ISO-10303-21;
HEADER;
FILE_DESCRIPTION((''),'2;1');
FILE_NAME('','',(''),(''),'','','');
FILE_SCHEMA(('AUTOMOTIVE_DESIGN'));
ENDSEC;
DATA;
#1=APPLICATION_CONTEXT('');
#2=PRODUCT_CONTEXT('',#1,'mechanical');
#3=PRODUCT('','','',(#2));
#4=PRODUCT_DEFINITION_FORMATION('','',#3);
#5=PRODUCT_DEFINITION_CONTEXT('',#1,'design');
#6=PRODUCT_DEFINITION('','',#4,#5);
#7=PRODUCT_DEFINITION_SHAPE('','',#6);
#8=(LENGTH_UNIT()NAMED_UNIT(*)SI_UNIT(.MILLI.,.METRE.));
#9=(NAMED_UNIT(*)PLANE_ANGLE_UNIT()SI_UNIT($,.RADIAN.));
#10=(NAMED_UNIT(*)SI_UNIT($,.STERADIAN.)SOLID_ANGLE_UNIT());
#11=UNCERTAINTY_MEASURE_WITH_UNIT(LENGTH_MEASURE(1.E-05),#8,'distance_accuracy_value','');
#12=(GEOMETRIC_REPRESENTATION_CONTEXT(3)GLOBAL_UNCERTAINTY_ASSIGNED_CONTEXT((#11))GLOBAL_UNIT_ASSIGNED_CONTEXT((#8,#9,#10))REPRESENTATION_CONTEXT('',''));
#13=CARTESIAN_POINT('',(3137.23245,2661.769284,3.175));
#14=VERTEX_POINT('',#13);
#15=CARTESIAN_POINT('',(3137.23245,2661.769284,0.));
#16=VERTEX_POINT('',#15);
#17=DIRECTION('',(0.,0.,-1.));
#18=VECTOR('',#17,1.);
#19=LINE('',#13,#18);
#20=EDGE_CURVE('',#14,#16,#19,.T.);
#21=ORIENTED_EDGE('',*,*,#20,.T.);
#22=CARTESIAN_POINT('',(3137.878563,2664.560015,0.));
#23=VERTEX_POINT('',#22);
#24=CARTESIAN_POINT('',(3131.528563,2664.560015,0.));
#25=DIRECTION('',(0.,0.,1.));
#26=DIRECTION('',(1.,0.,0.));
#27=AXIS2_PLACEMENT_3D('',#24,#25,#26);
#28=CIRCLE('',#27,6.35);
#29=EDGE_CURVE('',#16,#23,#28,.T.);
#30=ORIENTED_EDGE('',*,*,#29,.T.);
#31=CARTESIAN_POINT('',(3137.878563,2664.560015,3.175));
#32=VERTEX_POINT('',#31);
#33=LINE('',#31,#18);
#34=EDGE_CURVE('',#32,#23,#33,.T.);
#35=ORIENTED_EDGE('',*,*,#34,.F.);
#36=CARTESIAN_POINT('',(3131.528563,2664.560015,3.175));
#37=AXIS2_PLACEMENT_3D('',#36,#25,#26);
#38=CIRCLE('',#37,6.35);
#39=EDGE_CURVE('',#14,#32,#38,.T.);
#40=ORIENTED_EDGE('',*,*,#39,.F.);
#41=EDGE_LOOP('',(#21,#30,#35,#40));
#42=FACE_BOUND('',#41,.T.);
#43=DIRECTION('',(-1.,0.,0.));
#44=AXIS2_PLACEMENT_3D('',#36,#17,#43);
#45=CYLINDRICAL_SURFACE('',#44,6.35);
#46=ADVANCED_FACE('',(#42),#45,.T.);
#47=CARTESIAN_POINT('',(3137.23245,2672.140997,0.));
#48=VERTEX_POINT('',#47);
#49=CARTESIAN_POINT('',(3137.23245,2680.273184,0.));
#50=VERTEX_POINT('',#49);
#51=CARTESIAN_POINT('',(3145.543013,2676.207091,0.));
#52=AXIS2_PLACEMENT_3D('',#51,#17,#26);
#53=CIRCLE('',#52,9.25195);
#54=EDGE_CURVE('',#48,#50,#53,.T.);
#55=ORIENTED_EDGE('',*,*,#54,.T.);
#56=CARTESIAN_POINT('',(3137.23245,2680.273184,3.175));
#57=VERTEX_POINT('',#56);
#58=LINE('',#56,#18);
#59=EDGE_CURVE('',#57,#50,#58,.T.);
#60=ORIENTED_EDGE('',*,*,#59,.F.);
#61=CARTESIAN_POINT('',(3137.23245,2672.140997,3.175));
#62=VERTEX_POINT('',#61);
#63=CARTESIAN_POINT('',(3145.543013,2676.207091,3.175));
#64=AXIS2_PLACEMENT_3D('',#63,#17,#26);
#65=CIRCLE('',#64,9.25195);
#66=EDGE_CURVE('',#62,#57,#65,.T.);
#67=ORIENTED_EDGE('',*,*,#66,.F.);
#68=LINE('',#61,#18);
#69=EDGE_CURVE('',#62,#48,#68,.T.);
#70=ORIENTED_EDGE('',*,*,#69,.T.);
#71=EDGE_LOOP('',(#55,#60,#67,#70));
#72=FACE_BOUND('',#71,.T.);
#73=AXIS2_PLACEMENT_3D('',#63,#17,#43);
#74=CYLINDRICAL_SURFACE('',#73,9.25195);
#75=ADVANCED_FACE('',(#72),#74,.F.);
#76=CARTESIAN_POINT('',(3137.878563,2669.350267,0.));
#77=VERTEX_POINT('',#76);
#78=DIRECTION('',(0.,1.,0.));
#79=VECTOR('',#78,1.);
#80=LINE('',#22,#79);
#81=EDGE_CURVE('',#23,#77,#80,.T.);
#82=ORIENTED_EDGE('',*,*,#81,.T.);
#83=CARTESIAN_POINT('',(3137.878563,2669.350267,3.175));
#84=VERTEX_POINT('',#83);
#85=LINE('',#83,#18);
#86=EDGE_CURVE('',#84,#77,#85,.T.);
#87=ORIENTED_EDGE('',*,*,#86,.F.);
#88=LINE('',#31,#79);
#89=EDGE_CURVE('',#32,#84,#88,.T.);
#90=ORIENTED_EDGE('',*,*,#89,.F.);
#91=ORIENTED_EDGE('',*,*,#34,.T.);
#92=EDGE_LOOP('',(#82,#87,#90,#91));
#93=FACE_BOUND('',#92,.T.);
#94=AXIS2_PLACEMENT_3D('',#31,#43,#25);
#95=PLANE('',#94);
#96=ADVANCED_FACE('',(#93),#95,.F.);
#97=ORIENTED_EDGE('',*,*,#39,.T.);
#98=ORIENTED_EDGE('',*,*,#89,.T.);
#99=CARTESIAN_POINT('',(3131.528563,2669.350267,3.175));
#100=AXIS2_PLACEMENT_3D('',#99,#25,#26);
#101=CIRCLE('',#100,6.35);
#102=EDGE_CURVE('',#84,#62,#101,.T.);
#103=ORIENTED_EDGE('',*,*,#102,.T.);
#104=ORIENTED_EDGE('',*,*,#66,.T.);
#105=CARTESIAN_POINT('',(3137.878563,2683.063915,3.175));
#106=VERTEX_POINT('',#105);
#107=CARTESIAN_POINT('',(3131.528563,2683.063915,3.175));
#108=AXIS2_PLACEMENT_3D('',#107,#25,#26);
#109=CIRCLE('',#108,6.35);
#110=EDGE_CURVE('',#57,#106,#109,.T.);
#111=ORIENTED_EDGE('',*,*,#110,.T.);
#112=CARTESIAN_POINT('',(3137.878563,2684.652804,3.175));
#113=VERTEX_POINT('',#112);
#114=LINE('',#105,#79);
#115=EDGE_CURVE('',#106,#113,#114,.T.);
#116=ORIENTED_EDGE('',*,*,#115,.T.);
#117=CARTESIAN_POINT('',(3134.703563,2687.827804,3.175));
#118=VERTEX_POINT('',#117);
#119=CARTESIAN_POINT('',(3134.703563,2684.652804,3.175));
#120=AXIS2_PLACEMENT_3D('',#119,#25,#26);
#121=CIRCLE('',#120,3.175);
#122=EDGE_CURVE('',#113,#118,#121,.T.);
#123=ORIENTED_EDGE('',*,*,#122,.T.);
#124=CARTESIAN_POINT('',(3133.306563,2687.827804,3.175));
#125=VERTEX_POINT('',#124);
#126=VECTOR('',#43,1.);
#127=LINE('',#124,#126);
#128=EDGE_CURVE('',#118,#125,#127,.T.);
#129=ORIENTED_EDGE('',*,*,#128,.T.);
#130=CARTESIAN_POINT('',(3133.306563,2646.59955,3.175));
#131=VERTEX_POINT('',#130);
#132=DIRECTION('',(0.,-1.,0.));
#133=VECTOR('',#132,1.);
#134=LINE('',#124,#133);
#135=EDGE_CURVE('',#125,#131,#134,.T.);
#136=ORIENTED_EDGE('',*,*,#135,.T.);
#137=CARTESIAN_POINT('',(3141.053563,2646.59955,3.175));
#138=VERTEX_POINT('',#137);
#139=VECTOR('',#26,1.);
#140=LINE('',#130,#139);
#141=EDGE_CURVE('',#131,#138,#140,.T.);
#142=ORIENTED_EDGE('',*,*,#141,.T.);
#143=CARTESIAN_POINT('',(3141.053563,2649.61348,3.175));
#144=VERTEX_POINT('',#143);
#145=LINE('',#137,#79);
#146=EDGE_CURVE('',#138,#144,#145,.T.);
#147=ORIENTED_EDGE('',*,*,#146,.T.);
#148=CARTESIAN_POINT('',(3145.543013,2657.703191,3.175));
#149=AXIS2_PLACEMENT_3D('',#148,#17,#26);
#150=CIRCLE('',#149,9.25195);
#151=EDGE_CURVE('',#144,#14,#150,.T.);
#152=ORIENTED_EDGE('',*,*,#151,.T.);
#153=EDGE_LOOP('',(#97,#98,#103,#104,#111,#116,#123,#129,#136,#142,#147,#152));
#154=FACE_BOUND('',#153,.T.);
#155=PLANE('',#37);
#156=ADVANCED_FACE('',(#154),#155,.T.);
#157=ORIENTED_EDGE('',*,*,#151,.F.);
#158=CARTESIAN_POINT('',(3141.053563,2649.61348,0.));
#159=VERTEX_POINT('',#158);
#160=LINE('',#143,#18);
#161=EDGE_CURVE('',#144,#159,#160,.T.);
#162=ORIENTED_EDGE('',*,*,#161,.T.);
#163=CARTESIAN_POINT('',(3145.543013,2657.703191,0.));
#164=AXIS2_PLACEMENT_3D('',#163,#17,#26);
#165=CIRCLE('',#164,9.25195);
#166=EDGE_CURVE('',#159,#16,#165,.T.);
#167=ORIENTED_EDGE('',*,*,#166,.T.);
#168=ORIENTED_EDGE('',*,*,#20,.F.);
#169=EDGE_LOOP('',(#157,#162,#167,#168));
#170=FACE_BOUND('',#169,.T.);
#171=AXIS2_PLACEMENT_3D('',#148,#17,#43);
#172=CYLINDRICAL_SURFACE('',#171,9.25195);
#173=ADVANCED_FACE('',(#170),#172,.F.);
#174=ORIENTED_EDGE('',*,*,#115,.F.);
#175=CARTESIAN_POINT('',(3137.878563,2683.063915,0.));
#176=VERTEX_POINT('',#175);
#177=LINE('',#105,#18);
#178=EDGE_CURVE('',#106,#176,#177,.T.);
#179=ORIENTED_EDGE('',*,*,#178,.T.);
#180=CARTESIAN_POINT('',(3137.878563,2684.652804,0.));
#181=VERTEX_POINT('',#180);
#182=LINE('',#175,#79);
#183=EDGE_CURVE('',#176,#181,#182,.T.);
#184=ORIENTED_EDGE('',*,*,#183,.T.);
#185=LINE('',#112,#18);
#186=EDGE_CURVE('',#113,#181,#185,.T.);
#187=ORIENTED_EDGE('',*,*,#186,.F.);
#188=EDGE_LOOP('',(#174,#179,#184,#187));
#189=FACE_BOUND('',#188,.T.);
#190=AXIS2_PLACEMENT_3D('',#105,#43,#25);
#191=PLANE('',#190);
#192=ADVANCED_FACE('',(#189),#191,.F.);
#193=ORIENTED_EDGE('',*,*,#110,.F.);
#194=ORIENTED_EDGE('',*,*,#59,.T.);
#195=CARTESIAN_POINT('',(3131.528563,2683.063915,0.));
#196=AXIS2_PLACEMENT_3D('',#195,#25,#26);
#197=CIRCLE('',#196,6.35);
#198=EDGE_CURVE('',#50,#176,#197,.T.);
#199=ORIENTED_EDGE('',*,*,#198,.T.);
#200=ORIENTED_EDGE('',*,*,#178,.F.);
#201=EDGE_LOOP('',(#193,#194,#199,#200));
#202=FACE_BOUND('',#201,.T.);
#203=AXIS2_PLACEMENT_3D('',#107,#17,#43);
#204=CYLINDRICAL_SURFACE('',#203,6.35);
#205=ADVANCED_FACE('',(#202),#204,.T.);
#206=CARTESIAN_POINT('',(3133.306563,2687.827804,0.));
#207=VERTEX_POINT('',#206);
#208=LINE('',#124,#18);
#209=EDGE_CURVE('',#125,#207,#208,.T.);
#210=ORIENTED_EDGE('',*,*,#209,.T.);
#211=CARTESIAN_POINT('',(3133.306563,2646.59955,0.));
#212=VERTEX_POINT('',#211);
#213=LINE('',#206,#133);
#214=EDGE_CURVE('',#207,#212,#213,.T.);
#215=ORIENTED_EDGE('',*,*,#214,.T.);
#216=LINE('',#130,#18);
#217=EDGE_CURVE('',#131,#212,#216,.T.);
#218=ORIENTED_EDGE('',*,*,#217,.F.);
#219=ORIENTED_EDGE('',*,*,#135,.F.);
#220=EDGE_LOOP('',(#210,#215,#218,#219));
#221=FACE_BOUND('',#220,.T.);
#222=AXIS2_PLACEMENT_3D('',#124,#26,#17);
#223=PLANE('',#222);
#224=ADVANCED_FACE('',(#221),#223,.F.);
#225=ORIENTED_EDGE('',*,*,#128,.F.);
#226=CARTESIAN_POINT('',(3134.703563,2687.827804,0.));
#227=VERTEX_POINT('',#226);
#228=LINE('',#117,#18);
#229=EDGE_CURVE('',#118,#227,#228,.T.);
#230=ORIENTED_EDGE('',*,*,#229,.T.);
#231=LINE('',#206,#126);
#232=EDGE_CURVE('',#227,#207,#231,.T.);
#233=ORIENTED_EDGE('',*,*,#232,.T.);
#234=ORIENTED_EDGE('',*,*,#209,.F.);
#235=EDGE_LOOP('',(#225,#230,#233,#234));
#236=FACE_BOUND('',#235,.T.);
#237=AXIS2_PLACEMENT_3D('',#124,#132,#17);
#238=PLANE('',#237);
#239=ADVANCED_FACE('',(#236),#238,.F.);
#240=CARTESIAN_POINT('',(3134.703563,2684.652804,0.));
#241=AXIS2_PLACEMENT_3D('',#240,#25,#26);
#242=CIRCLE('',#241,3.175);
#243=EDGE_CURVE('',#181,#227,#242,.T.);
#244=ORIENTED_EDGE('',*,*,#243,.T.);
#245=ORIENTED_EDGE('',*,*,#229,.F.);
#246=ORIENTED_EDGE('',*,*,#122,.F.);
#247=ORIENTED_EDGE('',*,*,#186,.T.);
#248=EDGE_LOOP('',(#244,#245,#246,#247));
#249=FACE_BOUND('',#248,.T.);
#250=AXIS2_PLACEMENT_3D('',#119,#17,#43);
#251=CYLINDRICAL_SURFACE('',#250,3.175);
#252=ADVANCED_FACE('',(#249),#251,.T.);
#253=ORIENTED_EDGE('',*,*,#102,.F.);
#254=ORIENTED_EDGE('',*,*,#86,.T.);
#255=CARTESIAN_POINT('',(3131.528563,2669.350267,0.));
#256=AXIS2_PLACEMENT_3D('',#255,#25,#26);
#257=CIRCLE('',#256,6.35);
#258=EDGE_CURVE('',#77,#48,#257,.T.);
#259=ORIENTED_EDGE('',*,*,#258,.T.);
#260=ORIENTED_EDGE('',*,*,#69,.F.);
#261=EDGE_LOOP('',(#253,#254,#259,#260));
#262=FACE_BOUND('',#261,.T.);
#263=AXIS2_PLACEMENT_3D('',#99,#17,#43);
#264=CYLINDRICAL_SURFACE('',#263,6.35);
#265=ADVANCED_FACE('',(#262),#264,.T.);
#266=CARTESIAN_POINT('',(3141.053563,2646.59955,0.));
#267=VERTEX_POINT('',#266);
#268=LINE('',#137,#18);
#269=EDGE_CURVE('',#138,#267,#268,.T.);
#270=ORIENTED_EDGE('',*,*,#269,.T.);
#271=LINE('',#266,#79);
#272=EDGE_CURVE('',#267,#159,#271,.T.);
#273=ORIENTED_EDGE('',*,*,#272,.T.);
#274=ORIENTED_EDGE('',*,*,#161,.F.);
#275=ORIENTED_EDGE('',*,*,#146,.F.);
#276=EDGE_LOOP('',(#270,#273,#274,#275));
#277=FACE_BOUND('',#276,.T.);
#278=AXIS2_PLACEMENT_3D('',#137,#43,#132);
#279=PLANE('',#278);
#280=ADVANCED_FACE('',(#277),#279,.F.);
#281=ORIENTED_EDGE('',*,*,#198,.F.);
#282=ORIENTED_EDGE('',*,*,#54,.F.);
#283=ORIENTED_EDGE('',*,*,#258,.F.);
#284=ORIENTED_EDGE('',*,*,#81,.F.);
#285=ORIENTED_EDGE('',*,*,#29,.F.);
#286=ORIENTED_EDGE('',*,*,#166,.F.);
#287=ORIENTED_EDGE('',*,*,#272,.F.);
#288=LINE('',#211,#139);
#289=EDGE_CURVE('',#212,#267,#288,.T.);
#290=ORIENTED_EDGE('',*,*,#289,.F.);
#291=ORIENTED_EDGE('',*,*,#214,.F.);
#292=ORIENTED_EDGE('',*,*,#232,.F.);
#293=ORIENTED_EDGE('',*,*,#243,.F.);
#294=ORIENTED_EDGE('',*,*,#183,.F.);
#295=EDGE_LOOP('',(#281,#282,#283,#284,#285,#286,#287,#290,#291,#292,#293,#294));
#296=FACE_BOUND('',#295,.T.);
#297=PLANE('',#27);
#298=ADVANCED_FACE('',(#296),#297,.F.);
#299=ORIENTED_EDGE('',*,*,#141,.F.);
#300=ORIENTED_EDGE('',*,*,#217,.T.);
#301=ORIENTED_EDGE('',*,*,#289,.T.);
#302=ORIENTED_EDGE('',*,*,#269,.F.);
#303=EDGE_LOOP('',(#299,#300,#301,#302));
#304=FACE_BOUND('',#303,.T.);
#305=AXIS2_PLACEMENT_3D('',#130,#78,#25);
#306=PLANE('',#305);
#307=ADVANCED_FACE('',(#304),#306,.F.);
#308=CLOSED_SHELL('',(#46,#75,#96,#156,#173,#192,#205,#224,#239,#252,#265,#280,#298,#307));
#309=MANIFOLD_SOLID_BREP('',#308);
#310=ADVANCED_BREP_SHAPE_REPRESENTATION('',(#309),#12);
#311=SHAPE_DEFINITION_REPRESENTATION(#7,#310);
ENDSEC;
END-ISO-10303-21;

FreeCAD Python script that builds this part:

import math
import FreeCAD as App
import Part
import Sketcher
from FreeCAD import Vector
Q = App.Units.Quantity

doc = App.newDocument("Part")
body = doc.addObject("PartDesign::Body", "Body")

# Sketch on XY plane
sketch1 = doc.addObject("Sketcher::SketchObject", "Sketch")
body.addObject(sketch1)
sketch1.AttachmentSupport = (doc.XY_Plane, [""])
sketch1.MapMode = "FlatFace"
sketch1.addGeometry([
    Part.LineSegment(Vector(3133.306563, 2687.827804, 0), Vector(3133.306563, 2646.59955, 0)),  # 0
    Part.LineSegment(Vector(3133.306563, 2646.59955, 0), Vector(3141.053563, 2646.59955, 0)),  # 1
    Part.LineSegment(Vector(3141.053563, 2646.59955, 0), Vector(3141.053563, 2649.61348, 0)),  # 2
    Part.ArcOfCircle(Part.Circle(Vector(3145.543013, 2657.703191, 0), Vector(0, 0, 1), 9.25195), math.radians(153.928969), math.radians(240.971563)),  # 3
    Part.ArcOfCircle(Part.Circle(Vector(3131.528563, 2664.560015, 0), Vector(0, 0, 1), 6.35), math.radians(-26.071031), math.radians(0)),  # 4
    Part.LineSegment(Vector(3137.878563, 2664.560015, 0), Vector(3137.878563, 2669.350267, 0)),  # 5
    Part.ArcOfCircle(Part.Circle(Vector(3131.528563, 2669.350267, 0), Vector(0, 0, 1), 6.35), math.radians(0), math.radians(26.071031)),  # 6
    Part.ArcOfCircle(Part.Circle(Vector(3145.543013, 2676.207091, 0), Vector(0, 0, 1), 9.25195), math.radians(153.928969), math.radians(206.071031)),  # 7
    Part.ArcOfCircle(Part.Circle(Vector(3131.528563, 2683.063915, 0), Vector(0, 0, 1), 6.35), math.radians(-26.071031), math.radians(0)),  # 8
    Part.LineSegment(Vector(3137.878563, 2683.063915, 0), Vector(3137.878563, 2684.652804, 0)),  # 9
    Part.ArcOfCircle(Part.Circle(Vector(3134.703563, 2684.652804, 0), Vector(0, 0, 1), 3.175), math.radians(0), math.radians(90)),  # 10
    Part.LineSegment(Vector(3134.703563, 2687.827804, 0), Vector(3133.306563, 2687.827804, 0)),  # 11
], False)
sketch1.addConstraint([
    Sketcher.Constraint("Coincident", 0, 2, 1, 1),
    Sketcher.Constraint("Coincident", 1, 2, 2, 1),
    Sketcher.Constraint("Coincident", 2, 2, 3, 2),
    Sketcher.Constraint("Tangent", 3, 1, 4, 1),
    Sketcher.Constraint("Tangent", 4, 2, 5, 1),
    Sketcher.Constraint("Tangent", 5, 2, 6, 1),
    Sketcher.Constraint("Tangent", 6, 2, 7, 2),
    Sketcher.Constraint("Tangent", 7, 1, 8, 1),
    Sketcher.Constraint("Tangent", 8, 2, 9, 1),
    Sketcher.Constraint("Tangent", 9, 2, 10, 1),
    Sketcher.Constraint("Tangent", 10, 2, 11, 1),
    Sketcher.Constraint("Coincident", 11, 2, 0, 1),
    Sketcher.Constraint("Vertical", 0),
    Sketcher.Constraint("Horizontal", 1),
    Sketcher.Constraint("Vertical", 2),
    Sketcher.Constraint("Vertical", 5),
    Sketcher.Constraint("Vertical", 9),
    Sketcher.Constraint("Horizontal", 11),
    Sketcher.Constraint("Equal", 4, 6),
    Sketcher.Constraint("Equal", 3, 7),
    Sketcher.Constraint("Equal", 6, 8),
    Sketcher.Constraint("Vertical", 3, 3, 7, 3),
    Sketcher.Constraint("Vertical", 6, 3, 8, 3),
    Sketcher.Constraint("Radius", 4, Q("0.25 in")),
    Sketcher.Constraint("Radius", 10, Q("0.125 in")),
    Sketcher.Constraint("DistanceX", 1, 1, 1, 2, Q("0.305 in")),
    Sketcher.Constraint("DistanceX", 11, 2, 11, 1, Q("0.055 in")),
    Sketcher.Constraint("Radius", 3, Q("9.25195 mm")),
    Sketcher.Constraint("DistanceY", 3, 3, 7, 3, Q("0.7285 in")),
    Sketcher.Constraint("DistanceY", 2, 1, 2, 2, Q("3.01393 mm")),
    Sketcher.Constraint("DistanceY", 9, 1, 9, 2, Q("1.58889 mm")),
    Sketcher.Constraint("DistanceY", 0, 2, 0, 1, Q("41.228254 mm")),
    Sketcher.Constraint("DistanceY", -1, 1, 3, 3, Q("2657.703191 mm")),
    Sketcher.Constraint("DistanceX", -1, 1, 3, 1, Q("3137.23245 mm")),
])
pad1 = doc.addObject("PartDesign::Pad", "Pad")
body.addObject(pad1)
pad1.Profile = sketch1
pad1.Length = Q("0.125 in")

doc.recompute()
